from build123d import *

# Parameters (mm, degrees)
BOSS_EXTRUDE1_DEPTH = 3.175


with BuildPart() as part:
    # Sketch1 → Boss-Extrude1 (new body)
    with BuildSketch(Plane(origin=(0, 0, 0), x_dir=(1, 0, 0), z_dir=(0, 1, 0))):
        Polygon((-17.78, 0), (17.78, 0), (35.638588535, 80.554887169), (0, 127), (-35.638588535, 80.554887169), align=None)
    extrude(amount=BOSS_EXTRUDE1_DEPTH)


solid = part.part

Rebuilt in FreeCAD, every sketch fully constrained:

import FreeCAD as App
import Part
import Sketcher
from FreeCAD import Vector
Q = App.Units.Quantity


def add_polygon(sketch, points):
    """Adds a closed chain of lines whose ends are joined by coincident constraints."""
    first, n = sketch.GeometryCount, len(points)
    for a, b in zip(points, points[1:] + points[:1]):
        sketch.addGeometry(Part.LineSegment(App.Vector(*a, 0), App.Vector(*b, 0)), False)
    for i in range(n):
        sketch.addConstraint(Sketcher.Constraint("Coincident", first + i, 2, first + (i + 1) % n, 1))

doc = App.newDocument("Part")
params = doc.addObject("Spreadsheet::Sheet", "Params")
for row, (alias, value) in enumerate([
    ("sketch1_width", "1.4 in"),
    ("pad1_length", "0.125 in"),
], start=1):
    params.set(f"A{row}", alias)
    params.set(f"B{row}", "=" + value)
    params.setAlias(f"B{row}", alias)

body = doc.addObject("PartDesign::Body", "Body")

# Sketch on XZ plane
sketch1 = body.newObject("Sketcher::SketchObject", "Sketch")
sketch1.AttachmentSupport = (doc.getObject("XZ_Plane"), [""])
sketch1.MapMode = "FlatFace"
add_polygon(sketch1, [(-18, 0), (18, 0), (36, -81), (0, -127), (-36, -81)])  # lines 0-4
sketch1.addConstraint([
    Sketcher.Constraint("Horizontal", 0),
    Sketcher.Constraint("Symmetric", 0, 2, 4, 2, -1, 1),
    Sketcher.Constraint("Symmetric", 1, 2, 3, 2, -2),
    Sketcher.Constraint("PointOnObject", 2, 2, -2),
    Sketcher.Constraint("DistanceX", 0, 1, 0, 2, Q("1.4 in")),
    Sketcher.Constraint("DistanceY", 2, 2, -1, 1, Q("5 in")),
    Sketcher.Constraint("Angle", 1, Q("-77.5 deg")),
    Sketcher.Constraint("Angle", 2, Q("-127.5 deg")),
])
sketch1.setExpression("Constraints[9]", "Params.sketch1_width")
pad1 = body.newObject("PartDesign::Pad", "Pad")
pad1.Profile = sketch1
pad1.setExpression("Length", "Params.pad1_length")
pad1.Reversed = True

doc.recompute()
